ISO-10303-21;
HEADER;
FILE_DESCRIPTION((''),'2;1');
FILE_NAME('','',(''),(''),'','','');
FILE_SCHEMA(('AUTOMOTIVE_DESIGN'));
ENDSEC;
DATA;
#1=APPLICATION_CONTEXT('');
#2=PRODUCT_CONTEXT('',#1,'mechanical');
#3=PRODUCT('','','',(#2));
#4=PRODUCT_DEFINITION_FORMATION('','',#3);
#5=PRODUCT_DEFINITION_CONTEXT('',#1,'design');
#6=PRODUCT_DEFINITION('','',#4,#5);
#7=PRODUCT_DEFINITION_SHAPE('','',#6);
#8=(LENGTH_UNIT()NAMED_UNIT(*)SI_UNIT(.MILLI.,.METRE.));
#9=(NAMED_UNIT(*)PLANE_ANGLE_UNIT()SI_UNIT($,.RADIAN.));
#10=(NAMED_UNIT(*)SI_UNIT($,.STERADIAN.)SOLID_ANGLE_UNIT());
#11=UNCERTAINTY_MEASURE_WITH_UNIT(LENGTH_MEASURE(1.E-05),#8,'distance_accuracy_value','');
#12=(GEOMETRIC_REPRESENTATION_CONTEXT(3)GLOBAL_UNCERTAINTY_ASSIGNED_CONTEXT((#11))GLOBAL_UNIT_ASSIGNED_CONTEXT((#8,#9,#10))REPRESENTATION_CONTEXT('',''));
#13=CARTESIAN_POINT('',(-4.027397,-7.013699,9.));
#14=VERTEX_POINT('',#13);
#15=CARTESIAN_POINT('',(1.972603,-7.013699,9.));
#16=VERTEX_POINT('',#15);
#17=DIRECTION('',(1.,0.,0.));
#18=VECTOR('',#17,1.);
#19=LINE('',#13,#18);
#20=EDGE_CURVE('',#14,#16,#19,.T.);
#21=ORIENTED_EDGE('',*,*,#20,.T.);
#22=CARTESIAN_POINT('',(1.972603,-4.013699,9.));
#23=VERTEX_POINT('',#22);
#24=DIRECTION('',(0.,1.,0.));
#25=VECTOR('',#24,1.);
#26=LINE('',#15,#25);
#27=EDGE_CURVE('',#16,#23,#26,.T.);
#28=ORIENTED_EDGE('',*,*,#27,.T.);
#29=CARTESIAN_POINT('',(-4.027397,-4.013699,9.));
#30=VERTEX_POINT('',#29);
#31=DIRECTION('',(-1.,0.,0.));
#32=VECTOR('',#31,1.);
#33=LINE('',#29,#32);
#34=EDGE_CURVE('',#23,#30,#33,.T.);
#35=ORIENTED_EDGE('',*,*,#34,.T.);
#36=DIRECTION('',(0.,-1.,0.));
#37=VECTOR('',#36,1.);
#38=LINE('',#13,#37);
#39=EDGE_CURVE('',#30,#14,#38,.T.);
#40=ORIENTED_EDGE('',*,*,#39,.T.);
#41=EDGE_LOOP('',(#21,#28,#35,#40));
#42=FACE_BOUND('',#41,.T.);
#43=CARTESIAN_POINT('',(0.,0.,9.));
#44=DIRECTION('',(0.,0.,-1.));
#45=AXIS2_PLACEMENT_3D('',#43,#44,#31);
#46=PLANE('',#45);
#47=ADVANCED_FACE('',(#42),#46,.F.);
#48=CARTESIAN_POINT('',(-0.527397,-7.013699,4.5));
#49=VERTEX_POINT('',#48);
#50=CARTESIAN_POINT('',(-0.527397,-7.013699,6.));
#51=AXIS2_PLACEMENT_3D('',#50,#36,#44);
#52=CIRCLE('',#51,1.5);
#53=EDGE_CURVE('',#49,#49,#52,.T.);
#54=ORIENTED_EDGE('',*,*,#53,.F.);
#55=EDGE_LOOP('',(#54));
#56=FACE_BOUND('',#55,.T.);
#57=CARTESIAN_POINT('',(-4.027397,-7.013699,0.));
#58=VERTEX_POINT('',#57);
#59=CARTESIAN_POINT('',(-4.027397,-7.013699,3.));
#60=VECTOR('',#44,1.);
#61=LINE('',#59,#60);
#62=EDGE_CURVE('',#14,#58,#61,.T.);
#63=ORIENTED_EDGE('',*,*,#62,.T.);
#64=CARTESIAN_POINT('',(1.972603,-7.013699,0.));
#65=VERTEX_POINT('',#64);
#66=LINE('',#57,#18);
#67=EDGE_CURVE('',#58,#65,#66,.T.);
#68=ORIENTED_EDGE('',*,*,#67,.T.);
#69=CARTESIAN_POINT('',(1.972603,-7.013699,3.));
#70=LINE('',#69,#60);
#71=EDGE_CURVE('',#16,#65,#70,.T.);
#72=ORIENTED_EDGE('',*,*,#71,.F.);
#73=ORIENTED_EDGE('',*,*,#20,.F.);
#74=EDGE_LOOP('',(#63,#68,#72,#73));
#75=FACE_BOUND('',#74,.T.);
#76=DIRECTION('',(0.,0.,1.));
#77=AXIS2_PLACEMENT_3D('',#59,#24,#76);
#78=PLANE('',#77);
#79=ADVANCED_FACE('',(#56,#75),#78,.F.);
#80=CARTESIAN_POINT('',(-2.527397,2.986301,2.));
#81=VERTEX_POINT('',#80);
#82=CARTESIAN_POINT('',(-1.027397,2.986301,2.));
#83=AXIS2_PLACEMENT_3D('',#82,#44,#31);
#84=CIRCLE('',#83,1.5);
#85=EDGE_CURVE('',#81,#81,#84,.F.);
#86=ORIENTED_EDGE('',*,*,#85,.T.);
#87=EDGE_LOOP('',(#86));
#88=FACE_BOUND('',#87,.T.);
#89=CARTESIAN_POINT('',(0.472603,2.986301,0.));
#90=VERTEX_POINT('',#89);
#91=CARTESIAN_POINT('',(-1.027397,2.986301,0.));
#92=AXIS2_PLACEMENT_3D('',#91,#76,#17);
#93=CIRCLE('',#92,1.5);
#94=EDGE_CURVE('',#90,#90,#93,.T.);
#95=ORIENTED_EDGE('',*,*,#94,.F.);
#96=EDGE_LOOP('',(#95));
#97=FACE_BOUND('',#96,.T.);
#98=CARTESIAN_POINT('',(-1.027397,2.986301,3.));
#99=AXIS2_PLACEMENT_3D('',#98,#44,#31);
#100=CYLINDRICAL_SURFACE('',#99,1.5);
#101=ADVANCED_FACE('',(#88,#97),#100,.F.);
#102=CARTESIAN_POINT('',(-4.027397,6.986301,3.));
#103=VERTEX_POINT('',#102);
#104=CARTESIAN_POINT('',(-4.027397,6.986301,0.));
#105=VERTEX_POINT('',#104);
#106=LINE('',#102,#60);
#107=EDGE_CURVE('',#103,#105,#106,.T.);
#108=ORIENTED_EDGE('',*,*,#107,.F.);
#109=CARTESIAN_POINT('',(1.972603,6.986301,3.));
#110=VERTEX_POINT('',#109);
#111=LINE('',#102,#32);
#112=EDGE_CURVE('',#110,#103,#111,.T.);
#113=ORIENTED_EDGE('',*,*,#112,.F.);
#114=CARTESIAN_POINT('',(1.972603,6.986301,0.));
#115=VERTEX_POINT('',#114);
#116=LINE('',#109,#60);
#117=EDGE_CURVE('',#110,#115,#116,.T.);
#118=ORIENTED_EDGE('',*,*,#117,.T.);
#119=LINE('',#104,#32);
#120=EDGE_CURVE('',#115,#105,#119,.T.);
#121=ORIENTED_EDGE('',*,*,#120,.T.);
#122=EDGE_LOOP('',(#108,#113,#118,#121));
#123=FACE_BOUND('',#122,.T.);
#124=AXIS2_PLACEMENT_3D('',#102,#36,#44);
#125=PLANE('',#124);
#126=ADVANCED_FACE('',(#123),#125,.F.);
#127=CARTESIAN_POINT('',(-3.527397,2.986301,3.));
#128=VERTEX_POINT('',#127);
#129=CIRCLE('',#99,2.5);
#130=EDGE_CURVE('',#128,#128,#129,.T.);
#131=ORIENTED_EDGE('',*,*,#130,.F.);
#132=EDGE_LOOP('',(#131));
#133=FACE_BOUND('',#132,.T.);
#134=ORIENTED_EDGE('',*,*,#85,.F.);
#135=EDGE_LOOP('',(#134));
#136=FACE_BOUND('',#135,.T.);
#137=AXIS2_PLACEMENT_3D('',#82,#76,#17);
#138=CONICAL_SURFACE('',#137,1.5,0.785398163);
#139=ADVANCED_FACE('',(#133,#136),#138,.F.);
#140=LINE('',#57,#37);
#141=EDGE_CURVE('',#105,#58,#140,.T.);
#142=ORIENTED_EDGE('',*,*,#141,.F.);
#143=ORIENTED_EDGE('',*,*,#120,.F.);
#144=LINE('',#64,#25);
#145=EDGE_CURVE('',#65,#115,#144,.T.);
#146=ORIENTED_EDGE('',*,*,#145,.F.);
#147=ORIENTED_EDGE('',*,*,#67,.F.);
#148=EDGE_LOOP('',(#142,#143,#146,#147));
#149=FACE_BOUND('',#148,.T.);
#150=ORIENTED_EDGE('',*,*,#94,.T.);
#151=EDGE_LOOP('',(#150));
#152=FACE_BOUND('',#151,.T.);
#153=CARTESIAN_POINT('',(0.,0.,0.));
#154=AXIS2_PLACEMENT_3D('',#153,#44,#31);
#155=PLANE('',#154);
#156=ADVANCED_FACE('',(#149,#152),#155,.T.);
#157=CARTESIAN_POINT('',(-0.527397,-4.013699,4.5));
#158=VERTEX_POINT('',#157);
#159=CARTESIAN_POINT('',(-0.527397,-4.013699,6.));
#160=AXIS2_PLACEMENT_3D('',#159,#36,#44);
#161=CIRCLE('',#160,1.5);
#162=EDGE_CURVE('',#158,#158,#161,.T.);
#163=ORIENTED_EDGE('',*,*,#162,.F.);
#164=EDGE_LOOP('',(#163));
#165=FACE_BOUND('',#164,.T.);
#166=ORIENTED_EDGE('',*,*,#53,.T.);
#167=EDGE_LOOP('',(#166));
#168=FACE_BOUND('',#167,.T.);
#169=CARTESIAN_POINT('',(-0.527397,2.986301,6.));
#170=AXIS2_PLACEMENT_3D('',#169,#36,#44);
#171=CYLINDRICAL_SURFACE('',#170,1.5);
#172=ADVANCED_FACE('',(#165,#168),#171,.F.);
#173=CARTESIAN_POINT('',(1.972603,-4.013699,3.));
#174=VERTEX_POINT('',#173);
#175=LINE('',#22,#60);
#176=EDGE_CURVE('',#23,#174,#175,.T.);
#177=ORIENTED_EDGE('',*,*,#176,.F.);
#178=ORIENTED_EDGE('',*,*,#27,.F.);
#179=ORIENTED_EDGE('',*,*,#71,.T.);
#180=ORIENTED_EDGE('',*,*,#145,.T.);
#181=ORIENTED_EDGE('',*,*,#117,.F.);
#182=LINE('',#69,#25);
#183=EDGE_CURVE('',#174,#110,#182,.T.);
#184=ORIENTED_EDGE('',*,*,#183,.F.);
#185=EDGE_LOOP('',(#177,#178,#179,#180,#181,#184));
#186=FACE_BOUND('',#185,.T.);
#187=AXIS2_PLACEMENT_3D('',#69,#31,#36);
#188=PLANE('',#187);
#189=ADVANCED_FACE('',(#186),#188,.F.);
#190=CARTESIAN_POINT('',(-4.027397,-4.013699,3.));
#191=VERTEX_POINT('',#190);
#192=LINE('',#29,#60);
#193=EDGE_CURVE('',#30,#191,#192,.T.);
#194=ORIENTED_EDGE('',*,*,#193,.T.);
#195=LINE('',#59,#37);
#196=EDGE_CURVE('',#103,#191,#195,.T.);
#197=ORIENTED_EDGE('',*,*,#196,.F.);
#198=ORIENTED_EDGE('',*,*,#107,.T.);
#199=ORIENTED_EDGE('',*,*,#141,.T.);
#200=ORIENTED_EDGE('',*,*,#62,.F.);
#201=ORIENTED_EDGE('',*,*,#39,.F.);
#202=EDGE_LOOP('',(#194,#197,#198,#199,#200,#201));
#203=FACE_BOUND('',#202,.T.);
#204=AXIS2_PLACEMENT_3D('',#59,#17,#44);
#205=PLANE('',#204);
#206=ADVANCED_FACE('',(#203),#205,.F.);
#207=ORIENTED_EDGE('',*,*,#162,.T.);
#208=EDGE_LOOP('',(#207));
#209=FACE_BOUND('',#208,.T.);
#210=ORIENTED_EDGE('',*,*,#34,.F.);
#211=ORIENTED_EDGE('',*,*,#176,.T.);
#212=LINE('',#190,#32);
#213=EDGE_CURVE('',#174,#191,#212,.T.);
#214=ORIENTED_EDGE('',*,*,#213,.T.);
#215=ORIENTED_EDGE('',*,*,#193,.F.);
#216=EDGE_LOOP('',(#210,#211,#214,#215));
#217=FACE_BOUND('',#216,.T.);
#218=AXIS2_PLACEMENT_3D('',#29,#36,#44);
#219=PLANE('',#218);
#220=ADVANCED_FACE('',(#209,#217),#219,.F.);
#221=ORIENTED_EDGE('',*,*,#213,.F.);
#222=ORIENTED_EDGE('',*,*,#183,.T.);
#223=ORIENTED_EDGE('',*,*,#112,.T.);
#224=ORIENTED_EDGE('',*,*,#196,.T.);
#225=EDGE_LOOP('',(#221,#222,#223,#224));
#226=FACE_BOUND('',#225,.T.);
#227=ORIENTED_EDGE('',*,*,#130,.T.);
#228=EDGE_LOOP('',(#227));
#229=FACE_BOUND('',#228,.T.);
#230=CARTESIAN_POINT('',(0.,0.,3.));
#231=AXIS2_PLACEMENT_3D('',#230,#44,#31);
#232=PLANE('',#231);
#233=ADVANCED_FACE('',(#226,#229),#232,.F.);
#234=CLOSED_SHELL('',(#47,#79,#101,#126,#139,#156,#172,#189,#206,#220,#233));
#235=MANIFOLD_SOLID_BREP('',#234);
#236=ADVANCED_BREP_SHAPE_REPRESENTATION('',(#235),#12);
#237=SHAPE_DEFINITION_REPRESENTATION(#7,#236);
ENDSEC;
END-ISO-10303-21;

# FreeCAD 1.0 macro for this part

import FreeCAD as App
import Part
import Sketcher

V = App.Vector
Q = App.Units.Quantity


def edges_at(feature, points):
    """Names of the edges that pass closest to the given points."""
    edges = feature.Shape.Edges
    near = lambda p: min(range(len(edges)), key=lambda i: edges[i].distToShape(Part.Vertex(*p))[0])
    return sorted({f"Edge{near(p) + 1}" for p in points})

doc = App.newDocument("Part")
body = doc.addObject("PartDesign::Body", "Body")

sketch1 = doc.addObject("Sketcher::SketchObject", "Sketch")
body.addObject(sketch1)
sketch1.AttachmentSupport = (doc.XY_Plane, [""])
sketch1.MapMode = "FlatFace"
sketch1.addGeometry(Part.LineSegment(V(-4, 7, 0), V(-4, -7, 0)), False)
sketch1.addGeometry(Part.LineSegment(V(-4, -7, 0), V(2, -7, 0)), False)
sketch1.addGeometry(Part.LineSegment(V(2, -7, 0), V(2, 7, 0)), False)
sketch1.addGeometry(Part.LineSegment(V(2, 7, 0), V(-4, 7, 0)), False)
sketch1.addGeometry(Part.Circle(V(-1, 3, 0), V(0, 0, 1), 1.5), False)
sketch1.addConstraint(Sketcher.Constraint("Coincident", 0, 2, 1, 1))
sketch1.addConstraint(Sketcher.Constraint("Coincident", 1, 2, 2, 1))
sketch1.addConstraint(Sketcher.Constraint("Coincident", 2, 2, 3, 1))
sketch1.addConstraint(Sketcher.Constraint("Coincident", 3, 2, 0, 1))
sketch1.addConstraint(Sketcher.Constraint("Vertical", 0))
sketch1.addConstraint(Sketcher.Constraint("Horizontal", 1))
sketch1.addConstraint(Sketcher.Constraint("Vertical", 2))
sketch1.addConstraint(Sketcher.Constraint("Horizontal", 3))
sketch1.addConstraint(Sketcher.Constraint("Diameter", 4, Q("3 mm")))
sketch1.addConstraint(Sketcher.Constraint("DistanceX", 1, 1, 1, 2, Q("6 mm")))
sketch1.addConstraint(Sketcher.Constraint("DistanceY", 0, 2, 0, 1, Q("14 mm")))
sketch1.addConstraint(Sketcher.Constraint("DistanceX", 0, 2, 4, 3, Q("3 mm")))
sketch1.addConstraint(Sketcher.Constraint("DistanceY", 0, 2, 4, 3, Q("10 mm")))
sketch1.addConstraint(Sketcher.Constraint("DistanceY", -1, 1, 4, 3, Q("2.986301 mm")))
sketch1.addConstraint(Sketcher.Constraint("DistanceX", 4, 3, -1, 1, Q("1.027397 mm")))
pad1 = doc.addObject("PartDesign::Pad", "Pad")
body.addObject(pad1)
pad1.Profile = sketch1
pad1.Length = 3

sketch2 = doc.addObject("Sketcher::SketchObject", "Sketch001")
body.addObject(sketch2)
sketch2.AttachmentSupport = (doc.XY_Plane, [""])
sketch2.MapMode = "FlatFace"
sketch2.AttachmentOffset = App.Placement(V(0, 0, 3), App.Rotation())
sketch2.addGeometry(Part.LineSegment(V(-4, -4, 0), V(-4, -7, 0)), False)
sketch2.addGeometry(Part.LineSegment(V(-4, -7, 0), V(2, -7, 0)), False)
sketch2.addGeometry(Part.LineSegment(V(2, -7, 0), V(2, -4, 0)), False)
sketch2.addGeometry(Part.LineSegment(V(2, -4, 0), V(-4, -4, 0)), False)
sketch2.addConstraint(Sketcher.Constraint("Coincident", 0, 2, 1, 1))
sketch2.addConstraint(Sketcher.Constraint("Coincident", 1, 2, 2, 1))
sketch2.addConstraint(Sketcher.Constraint("Coincident", 2, 2, 3, 1))
sketch2.addConstraint(Sketcher.Constraint("Coincident", 3, 2, 0, 1))
sketch2.addConstraint(Sketcher.Constraint("Vertical", 0))
sketch2.addConstraint(Sketcher.Constraint("Horizontal", 1))
sketch2.addConstraint(Sketcher.Constraint("Vertical", 2))
sketch2.addConstraint(Sketcher.Constraint("Horizontal", 3))
sketch2.addConstraint(Sketcher.Constraint("DistanceX", 1, 1, 1, 2, Q("6 mm")))
sketch2.addConstraint(Sketcher.Constraint("DistanceY", 0, 2, 0, 1, Q("3 mm")))
sketch2.addConstraint(Sketcher.Constraint("DistanceY", 0, 2, -1, 1, Q("7.013699 mm")))
sketch2.addConstraint(Sketcher.Constraint("DistanceX", 0, 2, -1, 1, Q("4.027397 mm")))
pad2 = doc.addObject("PartDesign::Pad", "Pad001")
body.addObject(pad2)
pad2.Profile = sketch2
pad2.Length = 6

sketch3 = doc.addObject("Sketcher::SketchObject", "Sketch002")
body.addObject(sketch3)
sketch3.AttachmentSupport = (doc.XZ_Plane, [""])
sketch3.MapMode = "FlatFace"
sketch3.AttachmentOffset = App.Placement(V(0, 0, 7.013699), App.Rotation())
sketch3.addGeometry(Part.Circle(V(-0.5, 6, 0), V(0, 0, 1), 1.5), False)
sketch3.addConstraint(Sketcher.Constraint("Diameter", 0, Q("3 mm")))
sketch3.addConstraint(Sketcher.Constraint("DistanceY", -1, 1, 0, 3, Q("6 mm")))
sketch3.addConstraint(Sketcher.Constraint("DistanceX", 0, 3, -1, 1, Q("0.527397 mm")))
pocket1 = doc.addObject("PartDesign::Pocket", "Pocket")
body.addObject(pocket1)
pocket1.Profile = sketch3
pocket1.Length = 10
doc.recompute()

chamfer = doc.addObject("PartDesign::Chamfer", "Chamfer")
body.addObject(chamfer)
chamfer.Base = (pocket1, edges_at(pocket1, [(-2.527, 2.986, 3)]))
chamfer.Size = 1

doc.recompute()
